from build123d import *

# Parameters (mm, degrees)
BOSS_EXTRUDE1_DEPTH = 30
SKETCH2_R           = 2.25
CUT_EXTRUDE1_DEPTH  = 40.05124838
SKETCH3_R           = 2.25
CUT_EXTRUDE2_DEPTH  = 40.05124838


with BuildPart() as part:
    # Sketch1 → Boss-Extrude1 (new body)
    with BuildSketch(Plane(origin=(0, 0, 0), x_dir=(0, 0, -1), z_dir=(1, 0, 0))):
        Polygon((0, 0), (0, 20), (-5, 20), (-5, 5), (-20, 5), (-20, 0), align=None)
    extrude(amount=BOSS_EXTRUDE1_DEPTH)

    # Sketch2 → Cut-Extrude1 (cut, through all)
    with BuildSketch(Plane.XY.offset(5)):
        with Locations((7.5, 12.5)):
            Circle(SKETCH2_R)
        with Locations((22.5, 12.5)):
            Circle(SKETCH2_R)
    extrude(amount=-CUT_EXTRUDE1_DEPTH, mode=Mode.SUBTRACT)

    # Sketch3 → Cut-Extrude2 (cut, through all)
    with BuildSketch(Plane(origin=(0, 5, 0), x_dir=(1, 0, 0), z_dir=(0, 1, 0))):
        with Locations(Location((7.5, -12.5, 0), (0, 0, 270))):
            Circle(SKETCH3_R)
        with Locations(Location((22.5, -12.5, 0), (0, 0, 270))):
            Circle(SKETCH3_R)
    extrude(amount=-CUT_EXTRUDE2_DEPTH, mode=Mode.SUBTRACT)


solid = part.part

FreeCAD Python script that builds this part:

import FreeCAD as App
import Part
import Sketcher
Q = App.Units.Quantity


def add_polygon(sketch, points):
    """Adds a closed chain of lines whose ends are joined by coincident constraints."""
    first, n = sketch.GeometryCount, len(points)
    for a, b in zip(points, points[1:] + points[:1]):
        sketch.addGeometry(Part.LineSegment(App.Vector(*a, 0), App.Vector(*b, 0)), False)
    for i in range(n):
        sketch.addConstraint(Sketcher.Constraint("Coincident", first + i, 2, first + (i + 1) % n, 1))

doc = App.newDocument("Part")
params = doc.addObject("Spreadsheet::Sheet", "Params")
for row, (alias, value) in enumerate([
    ("sketch1_width", "20 mm"),
    ("sketch1_width2", "15 mm"),
    ("pad1_length", "30 mm"),
    ("sketch2_diameter", "4.5 mm"),
    ("sketch3_diameter", "4.5 mm"),
], start=1):
    params.set(f"A{row}", alias)
    params.set(f"B{row}", "=" + value)
    params.setAlias(f"B{row}", alias)

body = doc.addObject("PartDesign::Body", "Body")

sketch1 = doc.addObject("Sketcher::SketchObject", "Sketch")
body.addObject(sketch1)
sketch1.AttachmentSupport = (doc.YZ_Plane, [""])
sketch1.MapMode = "FlatFace"
add_polygon(sketch1, [(0, 0), (20, 0), (20, 5), (5, 5), (5, 20), (0, 20)])
sketch1.addConstraint([
    Sketcher.Constraint("Horizontal", 0),
    Sketcher.Constraint("Vertical", 1),
    Sketcher.Constraint("Horizontal", 2),
    Sketcher.Constraint("Vertical", 3),
    Sketcher.Constraint("Horizontal", 4),
    Sketcher.Constraint("Vertical", 5),
    Sketcher.Constraint("Coincident", 5, 2, -1, 1),
    Sketcher.Constraint("Equal", 4, 1),
    Sketcher.Constraint("Equal", 2, 3),
    Sketcher.Constraint("DistanceX", 0, 1, 0, 2, Q("20 mm")),
    Sketcher.Constraint("DistanceX", 2, 2, 2, 1, Q("15 mm")),
])
sketch1.setExpression("Constraints[15]", "Params.sketch1_width")
sketch1.setExpression("Constraints[16]", "Params.sketch1_width2")
pad1 = doc.addObject("PartDesign::Pad", "Pad")
body.addObject(pad1)
pad1.Profile = sketch1
pad1.setExpression("Length", "Params.pad1_length")

sketch2 = doc.addObject("Sketcher::SketchObject", "Sketch001")
body.addObject(sketch2)
sketch2.AttachmentSupport = (doc.XY_Plane, [""])
sketch2.MapMode = "FlatFace"
sketch2.AttachmentOffset = App.Placement(App.Vector(0, 0, 5), App.Rotation())
sketch2.addGeometry([
    Part.Circle(App.Vector(7.5, 12.5, 0), App.Vector(0, 0, 1), 2.2),
    Part.Circle(App.Vector(22.5, 12.5, 0), App.Vector(0, 0, 1), 2.2),
], False)
sketch2.addConstraint([
    Sketcher.Constraint("Equal", 0, 1),
    Sketcher.Constraint("Horizontal", 0, 3, 1, 3),
    Sketcher.Constraint("Diameter", 0, Q("4.5 mm")),
    Sketcher.Constraint("DistanceX", 0, 3, 1, 3, Q("15 mm")),
    Sketcher.Constraint("DistanceX", -1, 1, 0, 3, Q("7.5 mm")),
    Sketcher.Constraint("DistanceY", -1, 1, 0, 3, Q("12.5 mm")),
])
sketch2.setExpression("Constraints[2]", "Params.sketch2_diameter")
pocket1 = doc.addObject("PartDesign::Pocket", "Pocket")
body.addObject(pocket1)
pocket1.Profile = sketch2
pocket1.Type = "ThroughAll"

sketch3 = doc.addObject("Sketcher::SketchObject", "Sketch002")
body.addObject(sketch3)
sketch3.AttachmentSupport = (doc.XZ_Plane, [""])
sketch3.MapMode = "FlatFace"
sketch3.AttachmentOffset = App.Placement(App.Vector(0, 0, -5), App.Rotation())
sketch3.addGeometry([
    Part.Circle(App.Vector(7.5, 12.5, 0), App.Vector(0, 0, 1), 2.2),
    Part.Circle(App.Vector(22.5, 12.5, 0), App.Vector(0, 0, 1), 2.2),
], False)
sketch3.addConstraint([
    Sketcher.Constraint("Equal", 0, 1),
    Sketcher.Constraint("Horizontal", 0, 3, 1, 3),
    Sketcher.Constraint("Diameter", 0, Q("4.5 mm")),
    Sketcher.Constraint("DistanceX", 0, 3, 1, 3, Q("15 mm")),
    Sketcher.Constraint("DistanceX", -1, 1, 0, 3, Q("7.5 mm")),
    Sketcher.Constraint("DistanceY", -1, 1, 0, 3, Q("12.5 mm")),
])
sketch3.setExpression("Constraints[2]", "Params.sketch3_diameter")
pocket2 = doc.addObject("PartDesign::Pocket", "Pocket001")
body.addObject(pocket2)
pocket2.Profile = sketch3
pocket2.Type = "ThroughAll"
pocket2.Reversed = True

doc.recompute()
